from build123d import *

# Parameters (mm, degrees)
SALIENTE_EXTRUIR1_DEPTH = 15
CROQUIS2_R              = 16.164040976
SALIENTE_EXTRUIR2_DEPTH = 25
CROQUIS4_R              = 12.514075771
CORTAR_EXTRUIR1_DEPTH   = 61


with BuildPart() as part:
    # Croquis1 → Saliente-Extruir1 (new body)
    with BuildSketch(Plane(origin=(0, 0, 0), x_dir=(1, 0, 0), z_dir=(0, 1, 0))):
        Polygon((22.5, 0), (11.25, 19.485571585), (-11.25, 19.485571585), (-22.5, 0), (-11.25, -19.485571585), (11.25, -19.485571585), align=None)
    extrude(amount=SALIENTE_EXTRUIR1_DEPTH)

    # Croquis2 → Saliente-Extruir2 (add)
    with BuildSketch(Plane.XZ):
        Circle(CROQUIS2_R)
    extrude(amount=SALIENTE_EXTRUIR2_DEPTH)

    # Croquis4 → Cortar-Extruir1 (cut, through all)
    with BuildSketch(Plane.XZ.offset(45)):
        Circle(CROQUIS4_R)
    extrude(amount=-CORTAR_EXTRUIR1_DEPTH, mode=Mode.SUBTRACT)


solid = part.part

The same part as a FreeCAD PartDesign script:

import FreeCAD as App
import Part
import Sketcher
from FreeCAD import Vector
Q = App.Units.Quantity


def add_polygon(sketch, points):
    """Adds a closed chain of lines whose ends are joined by coincident constraints."""
    first, n = sketch.GeometryCount, len(points)
    for a, b in zip(points, points[1:] + points[:1]):
        sketch.addGeometry(Part.LineSegment(App.Vector(*a, 0), App.Vector(*b, 0)), False)
    for i in range(n):
        sketch.addConstraint(Sketcher.Constraint("Coincident", first + i, 2, first + (i + 1) % n, 1))

doc = App.newDocument("Part")
body = doc.addObject("PartDesign::Body", "Body")

sketch1 = body.newObject("Sketcher::SketchObject", "Sketch")
sketch1.AttachmentSupport = (doc.getObject("XZ_Plane"), [""])
sketch1.MapMode = "FlatFace"
add_polygon(sketch1, [(22, 0), (11, -19), (-11, -19), (-22, 0), (-11, 19), (11, 19)])
sketch1.addConstraint([
    Sketcher.Constraint("Horizontal", 1),
    Sketcher.Constraint("Horizontal", 4),
    Sketcher.Constraint("Symmetric", 0, 2, 3, 2, -1, 1),
    Sketcher.Constraint("Symmetric", 2, 2, 5, 2, -1, 1),
    Sketcher.Constraint("PointOnObject", 2, 2, -1),
    Sketcher.Constraint("Parallel", 2, 5),
    Sketcher.Constraint("Vertical", 1, 2, 3, 2),
    Sketcher.Constraint("Angle", 0, Q("-120 deg")),
    Sketcher.Constraint("DistanceX", 1, 2, 1, 1, Q("22.5 mm")),
    Sketcher.Constraint("DistanceX", 2, 2, 5, 2, Q("45 mm")),
])
pad1 = body.newObject("PartDesign::Pad", "Pad")
pad1.Profile = sketch1
pad1.Length = 15
pad1.Reversed = True

sketch2 = body.newObject("Sketcher::SketchObject", "Sketch001")
sketch2.AttachmentSupport = (doc.getObject("XZ_Plane"), [""])
sketch2.MapMode = "FlatFace"
sketch2.addGeometry(Part.Circle(Vector(0, 0, 0), Vector(0, 0, 1), 16), False)
sketch2.addConstraint([
    Sketcher.Constraint("Coincident", 0, 3, -1, 1),
    Sketcher.Constraint("Diameter", 0, Q("32.328082 mm")),
])
pad2 = body.newObject("PartDesign::Pad", "Pad001")
pad2.Profile = sketch2
pad2.Length = 25

sketch3 = body.newObject("Sketcher::SketchObject", "Sketch002")
sketch3.AttachmentSupport = (doc.getObject("XZ_Plane"), [""])
sketch3.MapMode = "FlatFace"
sketch3.AttachmentOffset = App.Placement(Vector(0, 0, 45), App.Rotation())
sketch3.addGeometry(Part.Circle(Vector(0, 0, 0), Vector(0, 0, 1), 13), False)
sketch3.addConstraint([
    Sketcher.Constraint("Coincident", 0, 3, -1, 1),
    Sketcher.Constraint("Diameter", 0, Q("25.028152 mm")),
])
pocket1 = body.newObject("PartDesign::Pocket", "Pocket")
pocket1.Profile = sketch3
pocket1.Type = "ThroughAll"

doc.recompute()
